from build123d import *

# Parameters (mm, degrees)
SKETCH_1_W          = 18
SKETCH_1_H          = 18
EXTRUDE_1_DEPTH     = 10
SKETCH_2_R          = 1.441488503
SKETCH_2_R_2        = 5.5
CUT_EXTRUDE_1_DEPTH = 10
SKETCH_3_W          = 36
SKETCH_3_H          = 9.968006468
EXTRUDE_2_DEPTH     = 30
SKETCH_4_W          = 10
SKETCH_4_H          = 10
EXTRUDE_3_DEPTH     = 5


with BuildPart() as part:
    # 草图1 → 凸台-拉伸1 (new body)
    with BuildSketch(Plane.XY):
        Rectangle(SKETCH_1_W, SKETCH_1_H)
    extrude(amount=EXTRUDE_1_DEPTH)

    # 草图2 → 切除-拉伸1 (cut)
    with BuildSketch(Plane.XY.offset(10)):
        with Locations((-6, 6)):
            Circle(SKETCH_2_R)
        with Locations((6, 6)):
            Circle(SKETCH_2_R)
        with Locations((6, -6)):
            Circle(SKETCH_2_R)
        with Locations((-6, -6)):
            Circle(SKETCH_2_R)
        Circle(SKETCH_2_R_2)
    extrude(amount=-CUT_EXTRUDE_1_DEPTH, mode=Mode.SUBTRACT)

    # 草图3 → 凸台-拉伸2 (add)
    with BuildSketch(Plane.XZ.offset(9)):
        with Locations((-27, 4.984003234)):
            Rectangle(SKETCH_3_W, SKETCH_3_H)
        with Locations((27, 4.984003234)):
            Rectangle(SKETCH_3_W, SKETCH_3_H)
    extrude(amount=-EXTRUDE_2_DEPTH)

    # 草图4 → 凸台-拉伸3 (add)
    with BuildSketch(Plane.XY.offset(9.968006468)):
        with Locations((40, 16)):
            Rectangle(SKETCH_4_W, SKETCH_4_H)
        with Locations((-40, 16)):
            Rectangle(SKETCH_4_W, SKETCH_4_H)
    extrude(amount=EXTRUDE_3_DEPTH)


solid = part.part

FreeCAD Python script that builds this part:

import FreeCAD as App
import Part
import Sketcher
from FreeCAD import Vector


def add_polygon(sketch, points):
    """Adds a closed chain of lines whose ends are joined by coincident constraints."""
    first, n = sketch.GeometryCount, len(points)
    for a, b in zip(points, points[1:] + points[:1]):
        sketch.addGeometry(Part.LineSegment(App.Vector(*a, 0), App.Vector(*b, 0)), False)
    for i in range(n):
        sketch.addConstraint(Sketcher.Constraint("Coincident", first + i, 2, first + (i + 1) % n, 1))

doc = App.newDocument("Part")
body = doc.addObject("PartDesign::Body", "Body")

sketch1 = body.newObject("Sketcher::SketchObject", "Sketch")
sketch1.AttachmentSupport = (doc.getObject("XY_Plane"), [""])
sketch1.MapMode = "FlatFace"
add_polygon(sketch1, [(-9, 9), (-9, -9), (9, -9), (9, 9)])
sketch1.addConstraint([
    Sketcher.Constraint("Vertical", 0),
    Sketcher.Constraint("Horizontal", 1),
    Sketcher.Constraint("Vertical", 2),
    Sketcher.Constraint("Horizontal", 3),
    Sketcher.Constraint("Symmetric", 0, 2, 2, 2, -1, 1),
    Sketcher.Constraint("Equal", 3, 0),
    Sketcher.Constraint("DistanceX", 1, 1, 1, 2, 18.0),
])
pad1 = body.newObject("PartDesign::Pad", "Pad")
pad1.Profile = sketch1
pad1.Length = 10

sketch2 = body.newObject("Sketcher::SketchObject", "Sketch001")
sketch2.AttachmentSupport = (doc.getObject("XY_Plane"), [""])
sketch2.MapMode = "FlatFace"
sketch2.AttachmentOffset = App.Placement(Vector(0, 0, 10), App.Rotation())
sketch2.addGeometry([
    Part.Circle(Vector(-6, 6, 0), Vector(0, 0, 1), 1.4),
    Part.Circle(Vector(6, 6, 0), Vector(0, 0, 1), 1.4),
    Part.Circle(Vector(6, -6, 0), Vector(0, 0, 1), 1.4),
    Part.Circle(Vector(-6, -6, 0), Vector(0, 0, 1), 1.4),
    Part.Circle(Vector(0, 0, 0), Vector(0, 0, 1), 5.5),
], False)
sketch2.addConstraint([
    Sketcher.Constraint("Coincident", 4, 3, -1, 1),
    Sketcher.Constraint("Equal", 0, 1),
    Sketcher.Constraint("Equal", 1, 2),
    Sketcher.Constraint("Equal", 2, 3),
    Sketcher.Constraint("Symmetric", 0, 3, 2, 3, -1, 1),
    Sketcher.Constraint("Symmetric", 1, 3, 3, 3, -1, 1),
    Sketcher.Constraint("Symmetric", 0, 3, 1, 3, -2),
    Sketcher.Constraint("Diameter", 4, 11.0),
    Sketcher.Constraint("DistanceX", 0, 3, -1, 1, 6.0),
    Sketcher.Constraint("DistanceY", -1, 1, 0, 3, 6.0),
    Sketcher.Constraint("Diameter", 0, 2.882977),
])
pocket1 = body.newObject("PartDesign::Pocket", "Pocket")
pocket1.Profile = sketch2
pocket1.Length = 10

sketch3 = body.newObject("Sketcher::SketchObject", "Sketch002")
sketch3.AttachmentSupport = (doc.getObject("XZ_Plane"), [""])
sketch3.MapMode = "FlatFace"
sketch3.AttachmentOffset = App.Placement(Vector(0, 0, 9), App.Rotation())
add_polygon(sketch3, [(-45, 10), (-45, 0), (-9, 0), (-9, 10)])
add_polygon(sketch3, [(9, 10), (9, 0), (45, 0), (45, 10)])
sketch3.addConstraint([
    Sketcher.Constraint("Vertical", 0),
    Sketcher.Constraint("Horizontal", 1),
    Sketcher.Constraint("Vertical", 2),
    Sketcher.Constraint("Horizontal", 3),
    Sketcher.Constraint("Vertical", 4),
    Sketcher.Constraint("Horizontal", 5),
    Sketcher.Constraint("Vertical", 6),
    Sketcher.Constraint("Horizontal", 7),
    Sketcher.Constraint("Symmetric", 1, 2, 4, 2, -1, 1),
    Sketcher.Constraint("Symmetric", 0, 2, 5, 2, -2),
    Sketcher.Constraint("Horizontal", 3, 2, 6, 2),
    Sketcher.Constraint("DistanceX", 1, 1, 1, 2, 36.0),
    Sketcher.Constraint("DistanceX", 0, 2, -1, 1, 45.0),
    Sketcher.Constraint("DistanceY", 0, 2, 0, 1, 9.968006),
])
pad2 = body.newObject("PartDesign::Pad", "Pad001")
pad2.Profile = sketch3
pad2.Length = 30
pad2.Reversed = True

sketch4 = body.newObject("Sketcher::SketchObject", "Sketch003")
sketch4.AttachmentSupport = (doc.getObject("XY_Plane"), [""])
sketch4.MapMode = "FlatFace"
sketch4.AttachmentOffset = App.Placement(Vector(0, 0, 9.968006), App.Rotation())
add_polygon(sketch4, [(35, 21), (35, 11), (45, 11), (45, 21)])
add_polygon(sketch4, [(-45, 21), (-45, 11), (-35, 11), (-35, 21)])
sketch4.addConstraint([
    Sketcher.Constraint("Vertical", 0),
    Sketcher.Constraint("Horizontal", 1),
    Sketcher.Constraint("Vertical", 2),
    Sketcher.Constraint("Horizontal", 3),
    Sketcher.Constraint("Vertical", 4),
    Sketcher.Constraint("Horizontal", 5),
    Sketcher.Constraint("Vertical", 6),
    Sketcher.Constraint("Horizontal", 7),
    Sketcher.Constraint("Symmetric", 1, 2, 4, 2, -2),
    Sketcher.Constraint("Symmetric", 3, 2, 6, 2, -2),
    Sketcher.Constraint("Equal", 7, 0),
    Sketcher.Constraint("DistanceX", 1, 1, 1, 2, 10.0),
    Sketcher.Constraint("DistanceX", -1, 1, 0, 2, 35.0),
    Sketcher.Constraint("DistanceY", -1, 1, 0, 2, 11.0),
])
pad3 = body.newObject("PartDesign::Pad", "Pad002")
pad3.Profile = sketch4
pad3.Length = 5

doc.recompute()
